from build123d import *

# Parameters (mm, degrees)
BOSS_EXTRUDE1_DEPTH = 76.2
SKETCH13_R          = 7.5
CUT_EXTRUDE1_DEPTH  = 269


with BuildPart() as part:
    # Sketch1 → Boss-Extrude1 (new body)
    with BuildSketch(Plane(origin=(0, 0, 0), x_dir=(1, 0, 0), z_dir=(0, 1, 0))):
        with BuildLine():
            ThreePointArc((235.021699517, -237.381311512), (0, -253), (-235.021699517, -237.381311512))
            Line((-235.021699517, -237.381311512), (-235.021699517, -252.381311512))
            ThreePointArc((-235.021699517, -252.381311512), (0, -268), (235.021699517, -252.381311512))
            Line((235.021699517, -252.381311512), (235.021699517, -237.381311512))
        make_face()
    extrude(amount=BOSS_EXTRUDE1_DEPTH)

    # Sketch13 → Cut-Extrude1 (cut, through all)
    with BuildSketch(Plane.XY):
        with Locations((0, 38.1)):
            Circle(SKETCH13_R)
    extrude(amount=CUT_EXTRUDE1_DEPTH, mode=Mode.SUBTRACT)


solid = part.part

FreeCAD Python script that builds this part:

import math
import FreeCAD as App
import Part
import Sketcher

V = App.Vector

doc = App.newDocument("Part")
body = doc.addObject("PartDesign::Body", "Body")

sketch1 = body.newObject("Sketcher::SketchObject", "Sketch")
sketch1.AttachmentSupport = (doc.getObject("XZ_Plane"), [""])
sketch1.MapMode = "FlatFace"
sketch1.addGeometry([
    Part.ArcOfCircle(Part.Circle(V(0, -1523, 0), V(0, 0, 1), 1776), math.radians(82.4), math.radians(97.6)),
    Part.LineSegment(V(-235, 237, 0), V(-235, 252, 0)),
    Part.ArcOfCircle(Part.Circle(V(0, -1508, 0), V(0, 0, 1), 1776), math.radians(82.4), math.radians(97.6)),
    Part.LineSegment(V(235, 252, 0), V(235, 237, 0)),
], False)
sketch1.addConstraint([
    Sketcher.Constraint("Coincident", 0, 2, 1, 1),
    Sketcher.Constraint("Coincident", 1, 2, 2, 2),
    Sketcher.Constraint("Coincident", 2, 1, 3, 1),
    Sketcher.Constraint("Coincident", 3, 2, 0, 1),
    Sketcher.Constraint("Vertical", 1),
    Sketcher.Constraint("Vertical", 3),
    Sketcher.Constraint("Equal", 0, 2),
    Sketcher.Constraint("PointOnObject", 0, 3, -2),
    Sketcher.Constraint("PointOnObject", 2, 3, -2),
    Sketcher.Constraint("DistanceY", 1, 1, 1, 2, 15.0),
    Sketcher.Constraint("DistanceY", 3, 2, 1, 2, 15.0),
    Sketcher.Constraint("Radius", 0, 1776.049977),
    Sketcher.Constraint("DistanceX", 1, 2, -1, 1, 235.0217),
    Sketcher.Constraint("DistanceY", -1, 1, 1, 2, 252.381312),
])
pad1 = body.newObject("PartDesign::Pad", "Pad")
pad1.Profile = sketch1
pad1.Length = 76.2
pad1.Reversed = True

sketch2 = body.newObject("Sketcher::SketchObject", "Sketch001")
sketch2.AttachmentSupport = (doc.getObject("XY_Plane"), [""])
sketch2.MapMode = "FlatFace"
sketch2.addGeometry(Part.Circle(V(0, 38, 0), V(0, 0, 1), 8), False)
sketch2.addConstraint([
    Sketcher.Constraint("PointOnObject", 0, 3, -2),
    Sketcher.Constraint("Diameter", 0, 15.0),
    Sketcher.Constraint("DistanceY", -1, 1, 0, 3, 38.1),
])
pocket1 = body.newObject("PartDesign::Pocket", "Pocket")
pocket1.Profile = sketch2
pocket1.Type = "ThroughAll"
pocket1.Reversed = True

doc.recompute()
